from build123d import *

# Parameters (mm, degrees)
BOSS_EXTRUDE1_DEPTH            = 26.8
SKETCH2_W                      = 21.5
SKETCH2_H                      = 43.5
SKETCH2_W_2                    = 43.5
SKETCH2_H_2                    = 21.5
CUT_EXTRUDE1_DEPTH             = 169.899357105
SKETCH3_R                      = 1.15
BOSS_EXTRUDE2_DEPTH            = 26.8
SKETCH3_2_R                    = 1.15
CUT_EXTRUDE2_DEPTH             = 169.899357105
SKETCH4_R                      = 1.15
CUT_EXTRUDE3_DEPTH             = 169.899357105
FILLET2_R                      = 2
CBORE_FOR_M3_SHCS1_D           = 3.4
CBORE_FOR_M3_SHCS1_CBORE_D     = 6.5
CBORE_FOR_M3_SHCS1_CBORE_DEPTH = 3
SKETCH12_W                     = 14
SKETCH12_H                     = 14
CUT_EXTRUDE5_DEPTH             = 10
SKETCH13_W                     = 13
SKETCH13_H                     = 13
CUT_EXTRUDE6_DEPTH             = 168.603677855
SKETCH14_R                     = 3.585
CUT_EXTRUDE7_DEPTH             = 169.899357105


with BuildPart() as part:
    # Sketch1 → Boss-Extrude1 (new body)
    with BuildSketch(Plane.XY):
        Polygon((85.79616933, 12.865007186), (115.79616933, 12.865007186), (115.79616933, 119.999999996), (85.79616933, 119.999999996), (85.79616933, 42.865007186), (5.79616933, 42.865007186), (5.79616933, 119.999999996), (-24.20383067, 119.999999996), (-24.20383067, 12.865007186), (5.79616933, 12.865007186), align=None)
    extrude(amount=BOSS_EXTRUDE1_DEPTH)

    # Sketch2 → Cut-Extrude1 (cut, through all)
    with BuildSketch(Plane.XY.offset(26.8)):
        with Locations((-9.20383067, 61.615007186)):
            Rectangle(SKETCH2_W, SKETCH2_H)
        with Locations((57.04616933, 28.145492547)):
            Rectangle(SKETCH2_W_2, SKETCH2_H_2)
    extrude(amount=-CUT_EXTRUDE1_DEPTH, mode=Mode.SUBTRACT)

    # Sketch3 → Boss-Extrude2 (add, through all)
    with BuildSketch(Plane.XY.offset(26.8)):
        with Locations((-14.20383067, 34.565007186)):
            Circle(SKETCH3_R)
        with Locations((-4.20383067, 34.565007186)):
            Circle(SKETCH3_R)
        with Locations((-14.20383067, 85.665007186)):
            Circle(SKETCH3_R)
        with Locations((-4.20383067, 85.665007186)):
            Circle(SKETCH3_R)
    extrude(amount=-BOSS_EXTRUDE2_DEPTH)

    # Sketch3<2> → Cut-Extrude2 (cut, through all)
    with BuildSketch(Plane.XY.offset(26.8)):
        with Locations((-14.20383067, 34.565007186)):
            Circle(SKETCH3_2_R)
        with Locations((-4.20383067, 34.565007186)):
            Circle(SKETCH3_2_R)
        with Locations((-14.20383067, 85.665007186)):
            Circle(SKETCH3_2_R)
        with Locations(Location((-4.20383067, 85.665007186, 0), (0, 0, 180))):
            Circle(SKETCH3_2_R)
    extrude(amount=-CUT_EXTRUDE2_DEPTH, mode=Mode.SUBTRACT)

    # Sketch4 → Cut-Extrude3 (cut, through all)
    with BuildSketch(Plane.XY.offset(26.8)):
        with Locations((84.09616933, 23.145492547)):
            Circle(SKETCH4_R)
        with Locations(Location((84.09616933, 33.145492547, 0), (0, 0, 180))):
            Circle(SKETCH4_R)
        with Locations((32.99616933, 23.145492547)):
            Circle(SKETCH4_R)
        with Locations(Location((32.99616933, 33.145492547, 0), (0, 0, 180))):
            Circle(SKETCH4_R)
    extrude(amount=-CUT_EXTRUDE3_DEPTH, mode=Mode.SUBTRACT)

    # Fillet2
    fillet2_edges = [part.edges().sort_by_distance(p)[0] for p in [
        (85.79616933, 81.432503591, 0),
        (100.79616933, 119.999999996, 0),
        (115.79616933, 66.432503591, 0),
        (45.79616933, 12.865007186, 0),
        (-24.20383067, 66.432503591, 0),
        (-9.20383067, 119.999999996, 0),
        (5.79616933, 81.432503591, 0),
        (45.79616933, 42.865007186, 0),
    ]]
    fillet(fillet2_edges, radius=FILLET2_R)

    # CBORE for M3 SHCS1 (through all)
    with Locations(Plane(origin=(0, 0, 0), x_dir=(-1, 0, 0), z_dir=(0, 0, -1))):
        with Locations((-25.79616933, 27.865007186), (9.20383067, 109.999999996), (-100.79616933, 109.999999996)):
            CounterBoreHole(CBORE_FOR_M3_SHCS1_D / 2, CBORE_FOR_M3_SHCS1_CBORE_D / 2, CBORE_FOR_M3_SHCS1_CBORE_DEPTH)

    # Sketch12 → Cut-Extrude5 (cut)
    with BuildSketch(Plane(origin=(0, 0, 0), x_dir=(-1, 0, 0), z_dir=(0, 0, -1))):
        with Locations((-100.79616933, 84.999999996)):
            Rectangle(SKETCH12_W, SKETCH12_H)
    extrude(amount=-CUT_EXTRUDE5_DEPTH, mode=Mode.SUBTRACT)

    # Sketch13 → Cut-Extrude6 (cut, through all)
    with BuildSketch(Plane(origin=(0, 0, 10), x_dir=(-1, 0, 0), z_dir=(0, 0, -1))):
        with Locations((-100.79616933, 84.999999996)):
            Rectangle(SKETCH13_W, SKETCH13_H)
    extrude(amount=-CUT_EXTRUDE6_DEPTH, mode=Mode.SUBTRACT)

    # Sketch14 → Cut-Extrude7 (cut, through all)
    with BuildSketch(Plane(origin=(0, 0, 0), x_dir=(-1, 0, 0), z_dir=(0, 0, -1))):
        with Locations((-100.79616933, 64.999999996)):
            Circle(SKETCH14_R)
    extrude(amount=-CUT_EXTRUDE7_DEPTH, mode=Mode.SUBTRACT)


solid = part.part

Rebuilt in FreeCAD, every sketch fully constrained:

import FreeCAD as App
import Part
import Sketcher

V = App.Vector
Q = App.Units.Quantity


def edges_at(feature, points):
    """Names of the edges that pass closest to the given points."""
    edges = feature.Shape.Edges
    near = lambda p: min(range(len(edges)), key=lambda i: edges[i].distToShape(Part.Vertex(*p))[0])
    return sorted({f"Edge{near(p) + 1}" for p in points})

doc = App.newDocument("Part")
body = doc.addObject("PartDesign::Body", "Body")

# Sketch on XY plane
sketch1 = body.newObject("Sketcher::SketchObject", "Sketch")
sketch1.AttachmentSupport = (doc.getObject("XY_Plane"), [""])
sketch1.MapMode = "FlatFace"
sketch1.addGeometry([
    Part.LineSegment(V(116, 13, 0), V(116, 120, 0)),  # 0
    Part.LineSegment(V(116, 120, 0), V(86, 120, 0)),  # 1
    Part.LineSegment(V(86, 120, 0), V(86, 43, 0)),  # 2
    Part.LineSegment(V(86, 43, 0), V(6, 43, 0)),  # 3
    Part.LineSegment(V(6, 43, 0), V(6, 120, 0)),  # 4
    Part.LineSegment(V(6, 120, 0), V(-24, 120, 0)),  # 5
    Part.LineSegment(V(-24, 120, 0), V(-24, 13, 0)),  # 6
    Part.LineSegment(V(-24, 13, 0), V(116, 13, 0)),  # 7
], False)
sketch1.addConstraint([
    Sketcher.Constraint("Coincident", 0, 2, 1, 1),
    Sketcher.Constraint("Coincident", 1, 2, 2, 1),
    Sketcher.Constraint("Coincident", 2, 2, 3, 1),
    Sketcher.Constraint("Coincident", 3, 2, 4, 1),
    Sketcher.Constraint("Coincident", 4, 2, 5, 1),
    Sketcher.Constraint("Coincident", 5, 2, 6, 1),
    Sketcher.Constraint("Coincident", 6, 2, 7, 1),
    Sketcher.Constraint("Coincident", 7, 2, 0, 1),
    Sketcher.Constraint("Vertical", 0),
    Sketcher.Constraint("Horizontal", 1),
    Sketcher.Constraint("Vertical", 2),
    Sketcher.Constraint("Horizontal", 3),
    Sketcher.Constraint("Vertical", 4),
    Sketcher.Constraint("Horizontal", 5),
    Sketcher.Constraint("Vertical", 6),
    Sketcher.Constraint("Horizontal", 7),
    Sketcher.Constraint("Horizontal", 1, 2, 4, 2),
    Sketcher.Constraint("Equal", 1, 5),
    Sketcher.Constraint("DistanceX", 1, 2, 1, 1, Q("30 mm")),
    Sketcher.Constraint("DistanceX", 3, 2, 3, 1, Q("80 mm")),
    Sketcher.Constraint("DistanceY", -1, 1, 0, 2, Q("120 mm")),
    Sketcher.Constraint("DistanceY", 6, 2, 3, 2, Q("30 mm")),
    Sketcher.Constraint("DistanceY", 0, 1, 0, 2, Q("107.134993 mm")),
    Sketcher.Constraint("DistanceX", -1, 1, 0, 2, Q("115.796169 mm")),
])
pad1 = body.newObject("PartDesign::Pad", "Pad")
pad1.Profile = sketch1
pad1.Length = 26.8

# Sketch on XY plane
sketch2 = body.newObject("Sketcher::SketchObject", "Sketch001")
sketch2.AttachmentSupport = (doc.getObject("XY_Plane"), [""])
sketch2.MapMode = "FlatFace"
sketch2.AttachmentOffset = App.Placement(V(0, 0, 26.8), App.Rotation())
sketch2.addGeometry([
    Part.LineSegment(V(-20, 83, 0), V(-20, 40, 0)),  # 0
    Part.LineSegment(V(-20, 40, 0), V(2, 40, 0)),  # 1
    Part.LineSegment(V(2, 40, 0), V(2, 83, 0)),  # 2
    Part.LineSegment(V(2, 83, 0), V(-20, 83, 0)),  # 3
    Part.LineSegment(V(35, 39, 0), V(35, 17, 0)),  # 4
    Part.LineSegment(V(35, 17, 0), V(79, 17, 0)),  # 5
    Part.LineSegment(V(79, 17, 0), V(79, 39, 0)),  # 6
    Part.LineSegment(V(79, 39, 0), V(35, 39, 0)),  # 7
], False)
sketch2.addConstraint([
    Sketcher.Constraint("Coincident", 0, 2, 1, 1),
    Sketcher.Constraint("Coincident", 1, 2, 2, 1),
    Sketcher.Constraint("Coincident", 2, 2, 3, 1),
    Sketcher.Constraint("Coincident", 3, 2, 0, 1),
    Sketcher.Constraint("Coincident", 4, 2, 5, 1),
    Sketcher.Constraint("Coincident", 5, 2, 6, 1),
    Sketcher.Constraint("Coincident", 6, 2, 7, 1),
    Sketcher.Constraint("Coincident", 7, 2, 4, 1),
    Sketcher.Constraint("Vertical", 0),
    Sketcher.Constraint("Horizontal", 1),
    Sketcher.Constraint("Vertical", 2),
    Sketcher.Constraint("Horizontal", 3),
    Sketcher.Constraint("Vertical", 4),
    Sketcher.Constraint("Horizontal", 5),
    Sketcher.Constraint("Vertical", 6),
    Sketcher.Constraint("Horizontal", 7),
    Sketcher.Constraint("Equal", 7, 0),
    Sketcher.Constraint("Equal", 3, 4),
    Sketcher.Constraint("DistanceX", 1, 1, 1, 2, Q("21.5 mm")),
    Sketcher.Constraint("DistanceX", 5, 1, 5, 2, Q("43.5 mm")),
    Sketcher.Constraint("DistanceX", 1, 2, 4, 2, Q("33.75 mm")),
    Sketcher.Constraint("DistanceX", 0, 2, -1, 1, Q("19.953831 mm")),
    Sketcher.Constraint("DistanceY", -1, 1, 0, 2, Q("39.865007 mm")),
    Sketcher.Constraint("DistanceY", -1, 1, 4, 2, Q("17.395493 mm")),
])
pocket1 = body.newObject("PartDesign::Pocket", "Pocket")
pocket1.Profile = sketch2
pocket1.Type = "ThroughAll"

# Sketch on XY plane
sketch3 = body.newObject("Sketcher::SketchObject", "Sketch002")
sketch3.AttachmentSupport = (doc.getObject("XY_Plane"), [""])
sketch3.MapMode = "FlatFace"
sketch3.AttachmentOffset = App.Placement(V(0, 0, 26.8), App.Rotation())
sketch3.addGeometry([
    Part.Circle(V(-14.2, 34.6, 0), V(0, 0, 1), 1.1),
    Part.Circle(V(-4.2, 34.6, 0), V(0, 0, 1), 1.1),
    Part.Circle(V(-14.2, 85.7, 0), V(0, 0, 1), 1.1),
    Part.Circle(V(-4.2, 85.7, 0), V(0, 0, 1), 1.1),
], False)
sketch3.addConstraint([
    Sketcher.Constraint("Equal", 0, 1),
    Sketcher.Constraint("Equal", 1, 2),
    Sketcher.Constraint("Equal", 2, 3),
    Sketcher.Constraint("Horizontal", 0, 3, 1, 3),
    Sketcher.Constraint("Horizontal", 2, 3, 3, 3),
    Sketcher.Constraint("Vertical", 0, 3, 2, 3),
    Sketcher.Constraint("Vertical", 1, 3, 3, 3),
    Sketcher.Constraint("Diameter", 0, Q("2.3 mm")),
    Sketcher.Constraint("DistanceX", 0, 3, 1, 3, Q("10 mm")),
    Sketcher.Constraint("DistanceY", 0, 3, 2, 3, Q("51.1 mm")),
    Sketcher.Constraint("DistanceX", 0, 3, -1, 1, Q("14.203831 mm")),
    Sketcher.Constraint("DistanceY", -1, 1, 0, 3, Q("34.565007 mm")),
])
pad2 = body.newObject("PartDesign::Pad", "Pad001")
pad2.Profile = sketch3
pad2.Length = 26.8
pad2.Reversed = True

# Sketch on XY plane
sketch4 = body.newObject("Sketcher::SketchObject", "Sketch003")
sketch4.AttachmentSupport = (doc.getObject("XY_Plane"), [""])
sketch4.MapMode = "FlatFace"
sketch4.AttachmentOffset = App.Placement(V(0, 0, 26.8), App.Rotation())
sketch4.addGeometry([
    Part.Circle(V(-14.2, 34.6, 0), V(0, 0, 1), 1.1),
    Part.Circle(V(-4.2, 34.6, 0), V(0, 0, 1), 1.1),
    Part.Circle(V(-14.2, 85.7, 0), V(0, 0, 1), 1.1),
    Part.Circle(V(-4.2, 85.7, 0), V(0, 0, 1), 1.1),
], False)
sketch4.addConstraint([
    Sketcher.Constraint("Equal", 0, 1),
    Sketcher.Constraint("Equal", 1, 2),
    Sketcher.Constraint("Equal", 2, 3),
    Sketcher.Constraint("Horizontal", 0, 3, 1, 3),
    Sketcher.Constraint("Horizontal", 2, 3, 3, 3),
    Sketcher.Constraint("Vertical", 0, 3, 2, 3),
    Sketcher.Constraint("Vertical", 1, 3, 3, 3),
    Sketcher.Constraint("Diameter", 0, Q("2.3 mm")),
    Sketcher.Constraint("DistanceX", 0, 3, 1, 3, Q("10 mm")),
    Sketcher.Constraint("DistanceY", 0, 3, 2, 3, Q("51.1 mm")),
    Sketcher.Constraint("DistanceX", 0, 3, -1, 1, Q("14.203831 mm")),
    Sketcher.Constraint("DistanceY", -1, 1, 0, 3, Q("34.565007 mm")),
])
pocket2 = body.newObject("PartDesign::Pocket", "Pocket001")
pocket2.Profile = sketch4
pocket2.Type = "ThroughAll"

# Sketch on XY plane
sketch5 = body.newObject("Sketcher::SketchObject", "Sketch004")
sketch5.AttachmentSupport = (doc.getObject("XY_Plane"), [""])
sketch5.MapMode = "FlatFace"
sketch5.AttachmentOffset = App.Placement(V(0, 0, 26.8), App.Rotation())
sketch5.addGeometry([
    Part.Circle(V(84.1, 23.1, 0), V(0, 0, 1), 1.1),
    Part.Circle(V(84.1, 33.1, 0), V(0, 0, 1), 1.1),
    Part.Circle(V(33, 23.1, 0), V(0, 0, 1), 1.1),
    Part.Circle(V(33, 33.1, 0), V(0, 0, 1), 1.1),
], False)
sketch5.addConstraint([
    Sketcher.Constraint("Equal", 0, 1),
    Sketcher.Constraint("Equal", 1, 2),
    Sketcher.Constraint("Equal", 2, 3),
    Sketcher.Constraint("Horizontal", 0, 3, 2, 3),
    Sketcher.Constraint("Horizontal", 1, 3, 3, 3),
    Sketcher.Constraint("Vertical", 0, 3, 1, 3),
    Sketcher.Constraint("Vertical", 2, 3, 3, 3),
    Sketcher.Constraint("Diameter", 0, Q("2.3 mm")),
    Sketcher.Constraint("DistanceY", 0, 3, 1, 3, Q("10 mm")),
    Sketcher.Constraint("DistanceX", 2, 3, 0, 3, Q("51.1 mm")),
    Sketcher.Constraint("DistanceX", -1, 1, 0, 3, Q("84.096169 mm")),
    Sketcher.Constraint("DistanceY", -1, 1, 0, 3, Q("23.145493 mm")),
])
pocket3 = body.newObject("PartDesign::Pocket", "Pocket002")
pocket3.Profile = sketch5
pocket3.Type = "ThroughAll"
doc.recompute()

fillet = body.newObject("PartDesign::Fillet", "Fillet")
fillet.Base = (pocket3, edges_at(pocket3, [
    (85.796, 81.433, 0),
    (100.796, 120, 0),
    (115.796, 66.433, 0),
    (45.796, 12.865, 0),
    (-24.204, 66.433, 0),
    (-9.204, 120, 0),
    (5.796, 81.433, 0),
    (45.796, 42.865, 0),
]))
fillet.Radius = 2

# Sketch on XY plane
sketch6 = body.newObject("Sketcher::SketchObject", "Sketch005")
sketch6.AttachmentSupport = (doc.getObject("XY_Plane"), [""])
sketch6.MapMode = "FlatFace"
sketch6.addGeometry([
    Part.Circle(V(25.8, 27.9, 0), V(0, 0, 1), 1.7),
    Part.Circle(V(-9.2, 110, 0), V(0, 0, 1), 1.7),
    Part.Circle(V(100.8, 110, 0), V(0, 0, 1), 1.7),
], False)
sketch6.addConstraint([
    Sketcher.Constraint("Equal", 0, 1),
    Sketcher.Constraint("Equal", 1, 2),
    Sketcher.Constraint("Horizontal", 1, 3, 2, 3),
    Sketcher.Constraint("Diameter", 0, Q("3.4 mm")),
    Sketcher.Constraint("DistanceY", -1, 1, 1, 3, Q("110 mm")),
    Sketcher.Constraint("DistanceX", 1, 3, 0, 3, Q("35 mm")),
    Sketcher.Constraint("DistanceX", 1, 3, 2, 3, Q("110 mm")),
    Sketcher.Constraint("DistanceX", -1, 1, 0, 3, Q("25.796169 mm")),
    Sketcher.Constraint("DistanceY", -1, 1, 0, 3, Q("27.865007 mm")),
])
doc.recompute()
hole = body.newObject("PartDesign::Hole", "Hole")
hole.Profile = sketch6
hole.ThreadType = "None"
hole.Diameter = 3.4
hole.DepthType = "ThroughAll"
hole.HoleCutType = "Counterbore"
hole.HoleCutDiameter = 6.5
hole.HoleCutDepth = 3
hole.Reversed = True

# Sketch on XY plane
sketch7 = body.newObject("Sketcher::SketchObject", "Sketch006")
sketch7.AttachmentSupport = (doc.getObject("XY_Plane"), [""])
sketch7.MapMode = "FlatFace"
sketch7.addGeometry([
    Part.LineSegment(V(108, 92, 0), V(108, 78, 0)),
    Part.LineSegment(V(108, 78, 0), V(94, 78, 0)),
    Part.LineSegment(V(94, 78, 0), V(94, 92, 0)),
    Part.LineSegment(V(94, 92, 0), V(108, 92, 0)),
], False)
sketch7.addConstraint([
    Sketcher.Constraint("Coincident", 0, 2, 1, 1),
    Sketcher.Constraint("Coincident", 1, 2, 2, 1),
    Sketcher.Constraint("Coincident", 2, 2, 3, 1),
    Sketcher.Constraint("Coincident", 3, 2, 0, 1),
    Sketcher.Constraint("Vertical", 0),
    Sketcher.Constraint("Horizontal", 1),
    Sketcher.Constraint("Vertical", 2),
    Sketcher.Constraint("Horizontal", 3),
    Sketcher.Constraint("Equal", 3, 0),
    Sketcher.Constraint("DistanceX", 1, 2, 1, 1, Q("14 mm")),
    Sketcher.Constraint("DistanceY", -1, 1, 0, 2, Q("78 mm")),
    Sketcher.Constraint("DistanceX", -1, 1, 0, 2, Q("107.796169 mm")),
])
pocket4 = body.newObject("PartDesign::Pocket", "Pocket003")
pocket4.Profile = sketch7
pocket4.Length = 10
pocket4.Reversed = True

# Sketch on XY plane
sketch8 = body.newObject("Sketcher::SketchObject", "Sketch007")
sketch8.AttachmentSupport = (doc.getObject("XY_Plane"), [""])
sketch8.MapMode = "FlatFace"
sketch8.AttachmentOffset = App.Placement(V(0, 0, 10), App.Rotation())
sketch8.addGeometry([
    Part.LineSegment(V(107, 91, 0), V(107, 78, 0)),
    Part.LineSegment(V(107, 78, 0), V(94, 78, 0)),
    Part.LineSegment(V(94, 78, 0), V(94, 91, 0)),
    Part.LineSegment(V(94, 91, 0), V(107, 91, 0)),
], False)
sketch8.addConstraint([
    Sketcher.Constraint("Coincident", 0, 2, 1, 1),
    Sketcher.Constraint("Coincident", 1, 2, 2, 1),
    Sketcher.Constraint("Coincident", 2, 2, 3, 1),
    Sketcher.Constraint("Coincident", 3, 2, 0, 1),
    Sketcher.Constraint("Vertical", 0),
    Sketcher.Constraint("Horizontal", 1),
    Sketcher.Constraint("Vertical", 2),
    Sketcher.Constraint("Horizontal", 3),
    Sketcher.Constraint("Equal", 3, 0),
    Sketcher.Constraint("DistanceX", 1, 2, 1, 1, Q("13 mm")),
    Sketcher.Constraint("DistanceY", -1, 1, 0, 2, Q("78.5 mm")),
    Sketcher.Constraint("DistanceX", -1, 1, 0, 2, Q("107.296169 mm")),
])
pocket5 = body.newObject("PartDesign::Pocket", "Pocket004")
pocket5.Profile = sketch8
pocket5.Type = "ThroughAll"
pocket5.Reversed = True

# Sketch on XY plane
sketch9 = body.newObject("Sketcher::SketchObject", "Sketch008")
sketch9.AttachmentSupport = (doc.getObject("XY_Plane"), [""])
sketch9.MapMode = "FlatFace"
sketch9.addGeometry(Part.Circle(V(100.8, 65, 0), V(0, 0, 1), 3.6), False)
sketch9.addConstraint([
    Sketcher.Constraint("Diameter", 0, Q("7.17 mm")),
    Sketcher.Constraint("DistanceY", -1, 1, 0, 3, Q("65 mm")),
    Sketcher.Constraint("DistanceX", -1, 1, 0, 3, Q("100.796169 mm")),
])
pocket6 = body.newObject("PartDesign::Pocket", "Pocket005")
pocket6.Profile = sketch9
pocket6.Type = "ThroughAll"
pocket6.Reversed = True

doc.recompute()
